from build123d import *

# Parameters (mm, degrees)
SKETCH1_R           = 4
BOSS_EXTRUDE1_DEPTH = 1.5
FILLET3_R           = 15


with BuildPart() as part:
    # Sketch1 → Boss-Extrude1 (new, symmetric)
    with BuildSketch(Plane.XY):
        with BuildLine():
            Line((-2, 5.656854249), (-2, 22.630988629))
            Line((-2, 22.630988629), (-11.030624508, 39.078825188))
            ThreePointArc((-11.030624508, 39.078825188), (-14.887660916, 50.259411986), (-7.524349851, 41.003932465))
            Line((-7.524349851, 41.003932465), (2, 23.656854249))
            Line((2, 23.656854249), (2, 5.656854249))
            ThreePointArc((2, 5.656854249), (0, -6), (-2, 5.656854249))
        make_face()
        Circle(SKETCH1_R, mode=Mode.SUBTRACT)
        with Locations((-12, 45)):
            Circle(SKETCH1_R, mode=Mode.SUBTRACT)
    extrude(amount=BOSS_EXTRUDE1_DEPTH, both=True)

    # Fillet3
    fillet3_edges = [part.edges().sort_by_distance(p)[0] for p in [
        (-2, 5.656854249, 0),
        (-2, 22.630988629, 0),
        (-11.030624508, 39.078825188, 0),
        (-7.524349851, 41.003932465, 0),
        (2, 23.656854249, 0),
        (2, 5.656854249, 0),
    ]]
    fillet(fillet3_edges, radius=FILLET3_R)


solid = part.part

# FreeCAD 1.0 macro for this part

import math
import FreeCAD as App
import Part
import Sketcher
Q = App.Units.Quantity


def edges_at(feature, points):
    """Names of the edges that pass closest to the given points."""
    edges = feature.Shape.Edges
    near = lambda p: min(range(len(edges)), key=lambda i: edges[i].distToShape(Part.Vertex(*p))[0])
    return sorted({f"Edge{near(p) + 1}" for p in points})

doc = App.newDocument("Part")
body = doc.addObject("PartDesign::Body", "Body")

sketch1 = doc.addObject("Sketcher::SketchObject", "Sketch")
body.addObject(sketch1)
sketch1.AttachmentSupport = (doc.XY_Plane, [""])
sketch1.MapMode = "FlatFace"
sketch1.addGeometry(Part.LineSegment(App.Vector(-2, 22.630989, 0), App.Vector(-2, 5.656854, 0)), False)
sketch1.addGeometry(Part.ArcOfCircle(Part.Circle(App.Vector(0, 0, 0), App.Vector(0, 0, 1), 6), math.radians(109.471221), math.radians(430.528779)), False)
sketch1.addGeometry(Part.LineSegment(App.Vector(2, 5.656854, 0), App.Vector(2, 23.656854, 0)), False)
sketch1.addGeometry(Part.LineSegment(App.Vector(2, 23.656854, 0), App.Vector(-7.52435, 41.003932, 0)), False)
sketch1.addGeometry(Part.ArcOfCircle(Part.Circle(App.Vector(-12, 45, 0), App.Vector(0, 0, 1), 6), math.radians(-41.759953), math.radians(279.297606)), False)
sketch1.addGeometry(Part.LineSegment(App.Vector(-11.030625, 39.078825, 0), App.Vector(-2, 22.630989, 0)), False)
sketch1.addGeometry(Part.Circle(App.Vector(0, 0, 0), App.Vector(0, 0, 1), 4), False)
sketch1.addGeometry(Part.Circle(App.Vector(-12, 45, 0), App.Vector(0, 0, 1), 4), False)
sketch1.addConstraint(Sketcher.Constraint("Coincident", 0, 2, 1, 1))
sketch1.addConstraint(Sketcher.Constraint("Coincident", 1, 2, 2, 1))
sketch1.addConstraint(Sketcher.Constraint("Coincident", 2, 2, 3, 1))
sketch1.addConstraint(Sketcher.Constraint("Coincident", 3, 2, 4, 1))
sketch1.addConstraint(Sketcher.Constraint("Coincident", 4, 2, 5, 1))
sketch1.addConstraint(Sketcher.Constraint("Coincident", 5, 2, 0, 1))
sketch1.addConstraint(Sketcher.Constraint("Vertical", 0))
sketch1.addConstraint(Sketcher.Constraint("Vertical", 2))
sketch1.addConstraint(Sketcher.Constraint("Coincident", 1, 3, -1, 1))
sketch1.addConstraint(Sketcher.Constraint("Coincident", 6, 3, -1, 1))
sketch1.addConstraint(Sketcher.Constraint("Coincident", 7, 3, 4, 3))
sketch1.addConstraint(Sketcher.Constraint("Equal", 1, 4))
sketch1.addConstraint(Sketcher.Constraint("Equal", 6, 7))
sketch1.addConstraint(Sketcher.Constraint("Parallel", 3, 5))
sketch1.addConstraint(Sketcher.Constraint("Horizontal", 0, 2, 1, 2))
sketch1.addConstraint(Sketcher.Constraint("Diameter", 6, Q("8 mm")))
sketch1.addConstraint(Sketcher.Constraint("Radius", 1, Q("6 mm")))
sketch1.addConstraint(Sketcher.Constraint("DistanceY", 2, 1, 2, 2, Q("18 mm")))
sketch1.addConstraint(Sketcher.Constraint("DistanceX", 4, 3, -1, 1, Q("12 mm")))
sketch1.addConstraint(Sketcher.Constraint("DistanceY", -1, 1, 4, 3, Q("45 mm")))
sketch1.addConstraint(Sketcher.Constraint("DistanceX", 0, 2, -1, 1, Q("2 mm")))
sketch1.addConstraint(Sketcher.Constraint("Distance", 5, Q("18.763888 mm")))
sketch1.addConstraint(Sketcher.Constraint("DistanceY", 0, 2, 0, 1, Q("16.974134 mm")))
pad1 = doc.addObject("PartDesign::Pad", "Pad")
body.addObject(pad1)
pad1.Profile = sketch1
pad1.Length = 3
pad1.Midplane = True
doc.recompute()

fillet = doc.addObject("PartDesign::Fillet", "Fillet")
body.addObject(fillet)
fillet.Base = (pad1, edges_at(pad1, [
    (-2, 5.657, 0),
    (-2, 22.631, 0),
    (-11.031, 39.079, 0),
    (-7.524, 41.004, 0),
    (2, 23.657, 0),
    (2, 5.657, 0),
]))
fillet.Radius = 15

doc.recompute()
